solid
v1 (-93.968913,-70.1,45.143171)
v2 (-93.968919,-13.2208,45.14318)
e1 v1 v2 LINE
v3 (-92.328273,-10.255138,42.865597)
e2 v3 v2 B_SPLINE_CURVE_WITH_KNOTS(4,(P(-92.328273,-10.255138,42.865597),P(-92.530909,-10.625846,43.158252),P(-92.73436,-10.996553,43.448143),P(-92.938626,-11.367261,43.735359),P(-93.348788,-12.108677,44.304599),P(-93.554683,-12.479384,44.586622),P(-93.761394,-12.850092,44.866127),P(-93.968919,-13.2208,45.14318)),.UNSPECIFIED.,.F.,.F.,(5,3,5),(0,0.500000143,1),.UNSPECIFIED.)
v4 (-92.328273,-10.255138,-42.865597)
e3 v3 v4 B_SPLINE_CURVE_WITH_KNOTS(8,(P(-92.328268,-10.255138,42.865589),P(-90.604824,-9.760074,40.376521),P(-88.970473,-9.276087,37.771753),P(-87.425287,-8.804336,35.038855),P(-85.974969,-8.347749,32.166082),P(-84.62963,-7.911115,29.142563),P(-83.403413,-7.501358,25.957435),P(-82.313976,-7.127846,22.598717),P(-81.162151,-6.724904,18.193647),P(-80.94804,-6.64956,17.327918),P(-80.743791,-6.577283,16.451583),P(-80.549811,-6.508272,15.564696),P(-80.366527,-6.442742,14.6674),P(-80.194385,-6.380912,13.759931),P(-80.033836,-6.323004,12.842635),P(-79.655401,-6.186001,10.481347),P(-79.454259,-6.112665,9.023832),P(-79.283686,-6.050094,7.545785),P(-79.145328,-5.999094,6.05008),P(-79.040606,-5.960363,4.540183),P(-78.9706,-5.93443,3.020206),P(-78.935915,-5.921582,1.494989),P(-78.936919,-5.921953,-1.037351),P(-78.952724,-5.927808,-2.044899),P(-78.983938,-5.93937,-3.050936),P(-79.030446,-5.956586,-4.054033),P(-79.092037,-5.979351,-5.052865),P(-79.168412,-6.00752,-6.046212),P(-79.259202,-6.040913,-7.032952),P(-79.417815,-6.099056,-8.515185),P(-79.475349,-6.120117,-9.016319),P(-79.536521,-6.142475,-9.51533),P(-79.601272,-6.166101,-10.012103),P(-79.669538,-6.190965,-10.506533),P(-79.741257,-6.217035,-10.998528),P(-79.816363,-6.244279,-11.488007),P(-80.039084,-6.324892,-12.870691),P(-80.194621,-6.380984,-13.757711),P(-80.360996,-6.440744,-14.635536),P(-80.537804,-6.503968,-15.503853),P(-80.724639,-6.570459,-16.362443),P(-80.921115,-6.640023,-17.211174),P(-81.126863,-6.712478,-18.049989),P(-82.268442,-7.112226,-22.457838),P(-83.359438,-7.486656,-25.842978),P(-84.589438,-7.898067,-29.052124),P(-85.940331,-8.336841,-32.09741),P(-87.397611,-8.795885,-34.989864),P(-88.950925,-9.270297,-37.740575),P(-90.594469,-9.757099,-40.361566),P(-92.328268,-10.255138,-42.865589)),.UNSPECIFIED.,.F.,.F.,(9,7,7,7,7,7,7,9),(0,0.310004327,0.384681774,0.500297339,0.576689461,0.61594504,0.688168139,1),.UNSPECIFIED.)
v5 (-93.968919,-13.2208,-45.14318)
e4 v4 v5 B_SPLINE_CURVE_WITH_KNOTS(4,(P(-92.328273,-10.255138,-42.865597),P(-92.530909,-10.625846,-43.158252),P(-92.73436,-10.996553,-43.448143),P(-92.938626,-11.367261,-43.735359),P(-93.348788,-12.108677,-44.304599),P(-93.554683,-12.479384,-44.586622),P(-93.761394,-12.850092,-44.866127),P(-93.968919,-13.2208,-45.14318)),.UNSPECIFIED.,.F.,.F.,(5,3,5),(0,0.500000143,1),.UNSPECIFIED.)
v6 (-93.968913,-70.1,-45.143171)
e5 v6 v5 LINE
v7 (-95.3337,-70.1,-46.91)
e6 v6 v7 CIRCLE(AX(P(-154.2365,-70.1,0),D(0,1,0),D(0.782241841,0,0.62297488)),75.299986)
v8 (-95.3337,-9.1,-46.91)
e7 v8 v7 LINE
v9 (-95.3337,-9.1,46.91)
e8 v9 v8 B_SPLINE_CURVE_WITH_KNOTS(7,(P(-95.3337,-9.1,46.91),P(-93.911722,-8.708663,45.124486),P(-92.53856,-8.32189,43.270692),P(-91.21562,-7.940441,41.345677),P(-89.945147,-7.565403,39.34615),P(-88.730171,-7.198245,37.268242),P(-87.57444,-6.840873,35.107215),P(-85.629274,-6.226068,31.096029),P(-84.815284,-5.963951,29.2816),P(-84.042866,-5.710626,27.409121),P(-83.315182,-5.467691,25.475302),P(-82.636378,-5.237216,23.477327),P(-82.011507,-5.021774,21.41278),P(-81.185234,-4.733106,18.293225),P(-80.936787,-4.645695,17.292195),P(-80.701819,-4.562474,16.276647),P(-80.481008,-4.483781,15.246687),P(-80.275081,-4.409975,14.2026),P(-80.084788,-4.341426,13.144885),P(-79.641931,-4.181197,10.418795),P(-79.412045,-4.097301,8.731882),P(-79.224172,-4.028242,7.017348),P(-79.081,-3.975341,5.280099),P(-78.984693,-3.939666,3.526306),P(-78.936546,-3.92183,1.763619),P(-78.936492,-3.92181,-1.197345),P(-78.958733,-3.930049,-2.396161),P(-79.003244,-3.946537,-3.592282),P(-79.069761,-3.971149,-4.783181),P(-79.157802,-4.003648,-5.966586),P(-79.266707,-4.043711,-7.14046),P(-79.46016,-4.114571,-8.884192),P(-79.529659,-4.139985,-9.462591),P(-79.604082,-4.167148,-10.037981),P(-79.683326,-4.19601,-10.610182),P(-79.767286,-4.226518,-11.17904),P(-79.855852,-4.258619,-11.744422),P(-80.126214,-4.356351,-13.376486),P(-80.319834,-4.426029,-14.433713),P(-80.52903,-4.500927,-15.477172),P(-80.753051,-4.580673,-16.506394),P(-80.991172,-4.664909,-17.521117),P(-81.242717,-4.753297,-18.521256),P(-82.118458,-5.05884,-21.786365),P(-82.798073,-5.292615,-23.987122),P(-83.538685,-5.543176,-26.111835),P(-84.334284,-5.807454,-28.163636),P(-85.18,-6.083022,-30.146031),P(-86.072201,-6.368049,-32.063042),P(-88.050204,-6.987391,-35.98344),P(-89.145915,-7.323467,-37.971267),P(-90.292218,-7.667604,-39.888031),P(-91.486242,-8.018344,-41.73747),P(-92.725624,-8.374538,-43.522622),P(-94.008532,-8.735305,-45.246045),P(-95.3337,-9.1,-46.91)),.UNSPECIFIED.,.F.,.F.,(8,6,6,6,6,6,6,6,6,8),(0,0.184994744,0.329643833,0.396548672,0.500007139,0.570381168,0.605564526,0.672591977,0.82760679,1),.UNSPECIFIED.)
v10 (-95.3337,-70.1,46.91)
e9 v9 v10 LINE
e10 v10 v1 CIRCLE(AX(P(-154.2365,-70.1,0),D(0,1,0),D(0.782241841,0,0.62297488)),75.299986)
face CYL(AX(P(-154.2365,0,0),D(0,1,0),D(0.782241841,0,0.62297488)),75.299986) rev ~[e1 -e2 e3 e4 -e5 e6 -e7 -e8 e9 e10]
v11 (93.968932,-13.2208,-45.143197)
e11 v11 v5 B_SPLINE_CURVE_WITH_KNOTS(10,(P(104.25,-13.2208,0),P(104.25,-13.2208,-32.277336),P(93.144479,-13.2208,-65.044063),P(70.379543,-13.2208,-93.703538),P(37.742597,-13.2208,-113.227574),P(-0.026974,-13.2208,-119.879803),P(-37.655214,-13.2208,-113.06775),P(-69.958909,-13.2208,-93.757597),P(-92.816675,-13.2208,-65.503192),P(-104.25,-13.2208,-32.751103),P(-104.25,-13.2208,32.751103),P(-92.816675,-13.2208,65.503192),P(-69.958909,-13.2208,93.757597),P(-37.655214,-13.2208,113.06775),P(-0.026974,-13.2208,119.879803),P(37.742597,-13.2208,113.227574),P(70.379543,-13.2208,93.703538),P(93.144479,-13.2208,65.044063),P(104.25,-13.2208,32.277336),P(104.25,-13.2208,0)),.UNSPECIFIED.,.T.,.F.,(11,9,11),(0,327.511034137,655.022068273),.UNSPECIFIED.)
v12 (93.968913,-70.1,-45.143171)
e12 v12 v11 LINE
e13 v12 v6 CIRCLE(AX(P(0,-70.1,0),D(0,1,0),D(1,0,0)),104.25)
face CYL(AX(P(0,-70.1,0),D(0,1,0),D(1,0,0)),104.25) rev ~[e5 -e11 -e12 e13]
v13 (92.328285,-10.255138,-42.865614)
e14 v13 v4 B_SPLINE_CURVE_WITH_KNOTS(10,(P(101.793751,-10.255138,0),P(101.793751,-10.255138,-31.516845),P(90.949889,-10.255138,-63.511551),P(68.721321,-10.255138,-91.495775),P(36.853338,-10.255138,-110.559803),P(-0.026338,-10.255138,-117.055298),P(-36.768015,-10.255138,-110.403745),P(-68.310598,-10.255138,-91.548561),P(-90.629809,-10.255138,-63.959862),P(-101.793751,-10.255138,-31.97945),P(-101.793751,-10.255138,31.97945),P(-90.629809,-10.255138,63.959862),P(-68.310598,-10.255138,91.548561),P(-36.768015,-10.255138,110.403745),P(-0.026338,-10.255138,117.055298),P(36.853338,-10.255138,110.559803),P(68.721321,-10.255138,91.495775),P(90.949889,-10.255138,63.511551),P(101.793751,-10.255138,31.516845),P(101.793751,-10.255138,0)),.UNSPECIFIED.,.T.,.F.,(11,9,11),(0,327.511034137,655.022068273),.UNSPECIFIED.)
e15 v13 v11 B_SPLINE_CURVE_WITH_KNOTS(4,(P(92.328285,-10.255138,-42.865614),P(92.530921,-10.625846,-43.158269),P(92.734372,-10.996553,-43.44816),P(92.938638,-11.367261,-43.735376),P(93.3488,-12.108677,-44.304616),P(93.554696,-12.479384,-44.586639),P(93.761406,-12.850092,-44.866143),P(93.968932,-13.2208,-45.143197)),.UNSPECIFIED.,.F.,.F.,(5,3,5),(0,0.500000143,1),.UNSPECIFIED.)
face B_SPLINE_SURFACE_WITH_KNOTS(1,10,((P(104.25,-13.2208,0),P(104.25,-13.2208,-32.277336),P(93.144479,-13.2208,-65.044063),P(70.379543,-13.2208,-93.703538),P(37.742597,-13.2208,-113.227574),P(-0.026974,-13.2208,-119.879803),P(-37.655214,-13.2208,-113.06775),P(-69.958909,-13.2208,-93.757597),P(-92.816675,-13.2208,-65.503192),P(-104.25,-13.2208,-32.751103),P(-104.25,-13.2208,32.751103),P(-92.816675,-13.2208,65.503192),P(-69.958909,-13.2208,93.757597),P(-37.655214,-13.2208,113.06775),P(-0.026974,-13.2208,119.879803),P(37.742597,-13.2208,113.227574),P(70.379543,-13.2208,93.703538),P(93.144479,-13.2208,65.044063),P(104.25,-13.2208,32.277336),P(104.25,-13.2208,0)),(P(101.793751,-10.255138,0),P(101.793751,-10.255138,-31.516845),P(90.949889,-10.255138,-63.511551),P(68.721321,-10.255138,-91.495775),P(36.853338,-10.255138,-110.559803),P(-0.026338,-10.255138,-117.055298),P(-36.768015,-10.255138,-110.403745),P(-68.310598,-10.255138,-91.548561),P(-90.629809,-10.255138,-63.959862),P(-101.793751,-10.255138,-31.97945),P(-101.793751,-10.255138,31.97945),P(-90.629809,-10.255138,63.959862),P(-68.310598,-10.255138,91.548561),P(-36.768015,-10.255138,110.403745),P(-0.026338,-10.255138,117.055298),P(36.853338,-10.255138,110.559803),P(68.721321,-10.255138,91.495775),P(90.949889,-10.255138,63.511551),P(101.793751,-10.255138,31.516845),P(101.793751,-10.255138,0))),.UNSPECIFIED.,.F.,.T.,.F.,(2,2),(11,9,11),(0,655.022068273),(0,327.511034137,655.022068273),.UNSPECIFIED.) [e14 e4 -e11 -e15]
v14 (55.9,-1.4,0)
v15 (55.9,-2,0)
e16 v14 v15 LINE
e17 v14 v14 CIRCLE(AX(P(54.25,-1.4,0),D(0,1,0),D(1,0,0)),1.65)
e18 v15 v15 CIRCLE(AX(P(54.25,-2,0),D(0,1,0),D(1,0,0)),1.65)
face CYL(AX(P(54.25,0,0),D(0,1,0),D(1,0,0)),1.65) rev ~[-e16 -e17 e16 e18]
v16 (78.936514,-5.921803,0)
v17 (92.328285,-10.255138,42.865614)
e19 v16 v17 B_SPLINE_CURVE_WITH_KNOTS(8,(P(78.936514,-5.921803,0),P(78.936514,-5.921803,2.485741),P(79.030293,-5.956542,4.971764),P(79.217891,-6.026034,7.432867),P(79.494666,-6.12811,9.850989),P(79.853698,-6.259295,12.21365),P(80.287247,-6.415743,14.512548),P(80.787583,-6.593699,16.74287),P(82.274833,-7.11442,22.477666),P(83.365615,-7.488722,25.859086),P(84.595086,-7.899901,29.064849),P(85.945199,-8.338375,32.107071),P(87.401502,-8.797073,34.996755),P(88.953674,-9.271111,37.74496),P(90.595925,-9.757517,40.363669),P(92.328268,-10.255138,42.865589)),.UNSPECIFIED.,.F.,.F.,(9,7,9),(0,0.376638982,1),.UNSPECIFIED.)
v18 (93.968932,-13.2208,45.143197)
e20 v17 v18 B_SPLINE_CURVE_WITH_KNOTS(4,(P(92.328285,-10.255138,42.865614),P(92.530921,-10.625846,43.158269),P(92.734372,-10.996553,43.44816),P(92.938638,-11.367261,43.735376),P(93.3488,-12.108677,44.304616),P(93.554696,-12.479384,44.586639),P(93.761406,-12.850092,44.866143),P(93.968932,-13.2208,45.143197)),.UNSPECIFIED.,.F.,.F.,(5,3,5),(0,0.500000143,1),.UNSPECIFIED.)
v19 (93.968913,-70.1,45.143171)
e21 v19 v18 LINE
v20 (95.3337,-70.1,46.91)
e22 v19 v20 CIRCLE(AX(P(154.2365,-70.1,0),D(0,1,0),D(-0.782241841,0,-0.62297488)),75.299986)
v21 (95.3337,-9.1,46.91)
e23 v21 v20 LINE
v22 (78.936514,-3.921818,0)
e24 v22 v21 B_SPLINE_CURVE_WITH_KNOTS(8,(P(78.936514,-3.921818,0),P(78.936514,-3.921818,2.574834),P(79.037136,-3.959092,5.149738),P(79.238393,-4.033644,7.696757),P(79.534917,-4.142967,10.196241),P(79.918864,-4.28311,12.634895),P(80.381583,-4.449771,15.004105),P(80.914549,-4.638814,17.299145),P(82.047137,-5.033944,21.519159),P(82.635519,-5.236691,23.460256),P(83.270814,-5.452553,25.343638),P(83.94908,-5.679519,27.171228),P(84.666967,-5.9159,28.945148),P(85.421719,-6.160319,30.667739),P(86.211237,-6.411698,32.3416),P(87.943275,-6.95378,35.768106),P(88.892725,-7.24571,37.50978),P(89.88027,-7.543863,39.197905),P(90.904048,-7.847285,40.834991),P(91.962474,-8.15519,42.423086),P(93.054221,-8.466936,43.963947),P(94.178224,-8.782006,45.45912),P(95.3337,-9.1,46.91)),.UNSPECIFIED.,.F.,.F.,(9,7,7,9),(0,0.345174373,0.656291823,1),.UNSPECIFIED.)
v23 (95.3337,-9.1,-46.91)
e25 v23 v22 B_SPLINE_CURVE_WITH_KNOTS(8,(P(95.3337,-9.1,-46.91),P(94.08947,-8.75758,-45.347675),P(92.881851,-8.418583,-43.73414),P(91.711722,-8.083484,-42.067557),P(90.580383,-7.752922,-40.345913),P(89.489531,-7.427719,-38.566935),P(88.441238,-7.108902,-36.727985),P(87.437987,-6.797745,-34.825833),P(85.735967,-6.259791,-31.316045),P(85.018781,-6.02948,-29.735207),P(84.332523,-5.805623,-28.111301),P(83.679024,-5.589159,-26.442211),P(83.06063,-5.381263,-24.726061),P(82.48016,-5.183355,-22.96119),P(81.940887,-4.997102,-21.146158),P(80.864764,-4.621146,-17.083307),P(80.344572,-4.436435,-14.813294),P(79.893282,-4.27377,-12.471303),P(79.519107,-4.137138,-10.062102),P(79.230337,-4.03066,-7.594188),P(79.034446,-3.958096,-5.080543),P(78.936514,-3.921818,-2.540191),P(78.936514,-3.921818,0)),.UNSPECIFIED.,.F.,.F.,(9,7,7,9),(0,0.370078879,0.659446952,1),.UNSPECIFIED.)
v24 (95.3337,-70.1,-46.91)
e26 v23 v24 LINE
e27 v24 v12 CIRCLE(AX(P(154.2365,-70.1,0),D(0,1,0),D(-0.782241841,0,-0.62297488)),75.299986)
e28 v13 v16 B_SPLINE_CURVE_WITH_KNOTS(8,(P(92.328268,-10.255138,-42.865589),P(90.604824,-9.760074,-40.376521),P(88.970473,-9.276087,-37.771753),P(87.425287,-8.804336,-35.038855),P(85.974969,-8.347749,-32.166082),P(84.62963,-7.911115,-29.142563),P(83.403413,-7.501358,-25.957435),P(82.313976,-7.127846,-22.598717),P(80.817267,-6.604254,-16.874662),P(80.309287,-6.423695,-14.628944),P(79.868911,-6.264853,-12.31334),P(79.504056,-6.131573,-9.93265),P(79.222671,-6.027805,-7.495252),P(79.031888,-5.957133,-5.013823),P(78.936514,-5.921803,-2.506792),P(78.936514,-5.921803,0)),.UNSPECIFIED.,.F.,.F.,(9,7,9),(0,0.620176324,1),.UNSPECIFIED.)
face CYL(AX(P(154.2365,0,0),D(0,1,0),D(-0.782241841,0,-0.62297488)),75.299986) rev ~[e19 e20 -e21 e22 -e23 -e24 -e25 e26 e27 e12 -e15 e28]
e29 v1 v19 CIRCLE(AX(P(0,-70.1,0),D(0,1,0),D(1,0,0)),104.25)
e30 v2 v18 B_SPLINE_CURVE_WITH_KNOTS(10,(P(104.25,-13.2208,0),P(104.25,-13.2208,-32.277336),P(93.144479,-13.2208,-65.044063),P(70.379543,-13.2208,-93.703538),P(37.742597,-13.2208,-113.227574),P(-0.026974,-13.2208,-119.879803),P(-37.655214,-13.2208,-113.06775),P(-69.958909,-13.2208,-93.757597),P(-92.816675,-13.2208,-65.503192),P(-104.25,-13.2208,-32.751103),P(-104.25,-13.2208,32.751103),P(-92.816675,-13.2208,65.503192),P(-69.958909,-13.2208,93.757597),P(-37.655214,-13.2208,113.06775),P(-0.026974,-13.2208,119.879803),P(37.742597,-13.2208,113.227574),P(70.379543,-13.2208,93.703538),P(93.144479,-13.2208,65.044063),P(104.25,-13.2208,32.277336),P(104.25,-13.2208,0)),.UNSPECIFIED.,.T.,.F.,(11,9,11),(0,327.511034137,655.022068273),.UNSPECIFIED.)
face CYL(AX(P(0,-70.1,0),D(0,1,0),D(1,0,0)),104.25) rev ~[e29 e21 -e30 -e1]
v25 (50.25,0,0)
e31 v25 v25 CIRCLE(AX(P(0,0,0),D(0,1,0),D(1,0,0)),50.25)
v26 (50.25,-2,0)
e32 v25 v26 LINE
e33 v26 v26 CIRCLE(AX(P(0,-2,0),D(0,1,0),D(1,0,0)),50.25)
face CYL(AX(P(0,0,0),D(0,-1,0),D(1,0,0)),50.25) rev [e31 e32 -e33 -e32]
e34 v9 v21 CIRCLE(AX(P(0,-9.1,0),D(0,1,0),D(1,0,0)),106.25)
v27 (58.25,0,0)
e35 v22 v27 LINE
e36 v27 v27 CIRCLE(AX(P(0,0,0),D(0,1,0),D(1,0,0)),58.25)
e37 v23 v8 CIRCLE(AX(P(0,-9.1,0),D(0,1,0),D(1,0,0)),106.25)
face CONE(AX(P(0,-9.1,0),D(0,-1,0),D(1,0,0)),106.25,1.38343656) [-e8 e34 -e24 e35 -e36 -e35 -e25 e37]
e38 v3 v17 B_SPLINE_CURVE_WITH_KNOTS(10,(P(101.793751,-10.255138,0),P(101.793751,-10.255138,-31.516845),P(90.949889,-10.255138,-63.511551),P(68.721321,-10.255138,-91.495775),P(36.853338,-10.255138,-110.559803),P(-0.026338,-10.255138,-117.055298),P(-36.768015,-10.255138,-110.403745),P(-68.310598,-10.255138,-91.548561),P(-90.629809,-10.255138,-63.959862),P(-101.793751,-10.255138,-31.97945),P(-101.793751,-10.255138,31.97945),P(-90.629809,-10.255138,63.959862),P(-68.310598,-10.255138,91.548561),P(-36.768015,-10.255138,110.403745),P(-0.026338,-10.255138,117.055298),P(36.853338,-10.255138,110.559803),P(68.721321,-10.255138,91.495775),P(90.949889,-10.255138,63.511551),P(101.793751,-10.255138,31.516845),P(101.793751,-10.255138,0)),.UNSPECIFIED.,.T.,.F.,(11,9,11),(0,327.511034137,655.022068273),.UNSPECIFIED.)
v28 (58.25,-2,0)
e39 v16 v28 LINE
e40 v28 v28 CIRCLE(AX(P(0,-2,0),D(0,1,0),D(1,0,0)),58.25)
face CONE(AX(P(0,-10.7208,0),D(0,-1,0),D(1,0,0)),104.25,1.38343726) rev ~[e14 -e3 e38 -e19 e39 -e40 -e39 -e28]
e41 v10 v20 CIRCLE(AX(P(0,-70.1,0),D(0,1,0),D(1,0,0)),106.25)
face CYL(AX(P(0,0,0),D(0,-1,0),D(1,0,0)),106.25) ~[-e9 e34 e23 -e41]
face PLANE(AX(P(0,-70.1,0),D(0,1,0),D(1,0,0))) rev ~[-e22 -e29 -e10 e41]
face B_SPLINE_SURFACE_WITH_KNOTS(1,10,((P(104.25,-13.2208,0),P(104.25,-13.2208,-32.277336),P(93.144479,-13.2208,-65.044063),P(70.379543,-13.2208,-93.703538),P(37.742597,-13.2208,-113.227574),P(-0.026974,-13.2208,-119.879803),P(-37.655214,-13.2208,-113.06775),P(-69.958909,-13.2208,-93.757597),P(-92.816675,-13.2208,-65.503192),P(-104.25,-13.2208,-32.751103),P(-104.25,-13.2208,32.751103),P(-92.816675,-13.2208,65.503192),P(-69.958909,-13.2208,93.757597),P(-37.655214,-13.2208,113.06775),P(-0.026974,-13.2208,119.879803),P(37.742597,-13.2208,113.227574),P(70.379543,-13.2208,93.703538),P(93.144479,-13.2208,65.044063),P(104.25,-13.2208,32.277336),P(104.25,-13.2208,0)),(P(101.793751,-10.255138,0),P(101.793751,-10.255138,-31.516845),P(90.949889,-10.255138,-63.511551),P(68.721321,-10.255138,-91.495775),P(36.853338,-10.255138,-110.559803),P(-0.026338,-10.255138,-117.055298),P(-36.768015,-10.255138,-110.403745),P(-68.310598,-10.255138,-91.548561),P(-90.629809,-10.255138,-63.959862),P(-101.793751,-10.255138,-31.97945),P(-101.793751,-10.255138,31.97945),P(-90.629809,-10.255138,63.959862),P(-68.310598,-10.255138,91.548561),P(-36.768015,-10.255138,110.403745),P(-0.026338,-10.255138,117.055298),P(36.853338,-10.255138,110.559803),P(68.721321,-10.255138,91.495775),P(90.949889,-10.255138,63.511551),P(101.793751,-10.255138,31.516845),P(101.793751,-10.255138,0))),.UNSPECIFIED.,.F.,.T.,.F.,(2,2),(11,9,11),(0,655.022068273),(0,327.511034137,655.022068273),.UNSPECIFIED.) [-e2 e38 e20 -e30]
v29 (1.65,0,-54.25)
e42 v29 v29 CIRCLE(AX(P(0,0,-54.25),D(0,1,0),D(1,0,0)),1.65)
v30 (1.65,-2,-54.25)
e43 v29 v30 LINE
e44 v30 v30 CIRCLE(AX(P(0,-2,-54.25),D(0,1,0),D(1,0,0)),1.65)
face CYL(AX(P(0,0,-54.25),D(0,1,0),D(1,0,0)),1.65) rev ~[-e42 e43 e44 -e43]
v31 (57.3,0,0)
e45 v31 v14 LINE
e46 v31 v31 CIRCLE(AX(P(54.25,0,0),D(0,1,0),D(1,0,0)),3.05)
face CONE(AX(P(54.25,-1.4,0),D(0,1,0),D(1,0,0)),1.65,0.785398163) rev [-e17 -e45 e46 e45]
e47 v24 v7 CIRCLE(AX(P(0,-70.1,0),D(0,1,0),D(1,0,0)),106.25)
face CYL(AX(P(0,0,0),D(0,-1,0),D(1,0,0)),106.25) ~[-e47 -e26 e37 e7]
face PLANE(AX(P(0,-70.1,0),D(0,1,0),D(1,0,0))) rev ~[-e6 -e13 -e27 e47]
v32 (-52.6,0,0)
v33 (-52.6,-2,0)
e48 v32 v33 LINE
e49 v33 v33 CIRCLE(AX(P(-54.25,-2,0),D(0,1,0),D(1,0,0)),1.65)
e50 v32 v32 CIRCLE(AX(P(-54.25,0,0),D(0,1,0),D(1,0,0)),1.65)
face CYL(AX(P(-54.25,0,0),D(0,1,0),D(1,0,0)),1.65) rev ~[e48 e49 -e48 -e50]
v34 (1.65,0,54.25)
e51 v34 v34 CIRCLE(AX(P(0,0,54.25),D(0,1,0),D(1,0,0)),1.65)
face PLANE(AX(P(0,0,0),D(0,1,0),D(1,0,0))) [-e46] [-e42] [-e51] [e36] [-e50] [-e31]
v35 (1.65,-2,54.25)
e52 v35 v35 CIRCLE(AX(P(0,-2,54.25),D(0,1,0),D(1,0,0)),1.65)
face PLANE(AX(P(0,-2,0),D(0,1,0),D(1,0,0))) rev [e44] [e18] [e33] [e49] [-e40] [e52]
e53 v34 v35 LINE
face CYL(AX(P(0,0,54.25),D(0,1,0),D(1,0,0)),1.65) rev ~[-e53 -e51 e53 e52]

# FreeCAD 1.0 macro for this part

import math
import FreeCAD as App
import Part
import Sketcher
from FreeCAD import Vector


def edges_at(feature, points):
    """Names of the edges that pass closest to the given points."""
    edges = feature.Shape.Edges
    near = lambda p: min(range(len(edges)), key=lambda i: edges[i].distToShape(Part.Vertex(*p))[0])
    return sorted({f"Edge{near(p) + 1}" for p in points})


def add_polygon(sketch, points):
    """Adds a closed chain of lines whose ends are joined by coincident constraints."""
    first, n = sketch.GeometryCount, len(points)
    for a, b in zip(points, points[1:] + points[:1]):
        sketch.addGeometry(Part.LineSegment(App.Vector(*a, 0), App.Vector(*b, 0)), False)
    for i in range(n):
        sketch.addConstraint(Sketcher.Constraint("Coincident", first + i, 2, first + (i + 1) % n, 1))

doc = App.newDocument("Part")
body = doc.addObject("PartDesign::Body", "Body")

# Sketch on XY plane
sketch1 = body.newObject("Sketcher::SketchObject", "Sketch")
sketch1.AttachmentSupport = (doc.getObject("XY_Plane"), [""])
sketch1.MapMode = "FlatFace"
add_polygon(sketch1, [(106.25, -9.1), (58.25, 0), (50.25, 0), (50.25, -2), (58.25, -2), (104.25, -10.7208), (104.25, -70.1), (106.25, -70.1)])  # lines 0-7
sketch1.addConstraint([
    Sketcher.Constraint("Horizontal", 1),
    Sketcher.Constraint("Vertical", 2),
    Sketcher.Constraint("Horizontal", 3),
    Sketcher.Constraint("Vertical", 5),
    Sketcher.Constraint("Horizontal", 6),
    Sketcher.Constraint("Vertical", 7),
    Sketcher.Constraint("PointOnObject", 0, 2, -1),
    Sketcher.Constraint("Parallel", 0, 4),
    Sketcher.Constraint("Vertical", 0, 2, 3, 2),
    Sketcher.Constraint("Equal", 6, 2),
    Sketcher.Constraint("DistanceX", 1, 2, 1, 1, 8.0),
    Sketcher.Constraint("DistanceX", 6, 1, 6, 2, 2.0),
    Sketcher.Constraint("DistanceY", 7, 1, 7, 2, 61.0),
    Sketcher.Constraint("DistanceY", 5, 2, -1, 1, 70.1),
    Sketcher.Constraint("DistanceX", -1, 1, 1, 2, 50.25),
    Sketcher.Constraint("DistanceX", 3, 2, 4, 2, 46.0),
])
revolution = body.newObject("PartDesign::Revolution", "Revolution")
revolution.Profile = sketch1
revolution.ReferenceAxis = (sketch1, ["V_Axis"])
revolution.Angle = 360
doc.recompute()

chamfer = body.newObject("PartDesign::Chamfer", "Chamfer")
chamfer.Base = (revolution, edges_at(revolution, [(-104.25, -10.721, 0)]))
chamfer.Size = 2.5

# Sketch on XZ plane
sketch2 = body.newObject("Sketcher::SketchObject", "Sketch001")
sketch2.AttachmentSupport = (doc.getObject("XZ_Plane"), [""])
sketch2.MapMode = "FlatFace"
sketch2.addGeometry([
    Part.ArcOfCircle(Part.Circle(Vector(-154.2365, 0, 0), Vector(0, 0, 1), 75.299986), math.radians(-38.533703), math.radians(38.533703)),
    Part.ArcOfCircle(Part.Circle(Vector(0, 0, 0), Vector(0, 0, 1), 106.25), math.radians(153.799998), math.radians(206.200002)),
    Part.ArcOfCircle(Part.Circle(Vector(0, 0, 0), Vector(0, 0, 1), 106.25), math.radians(-26.200002), math.radians(26.200002)),
    Part.ArcOfCircle(Part.Circle(Vector(154.2365, 0, 0), Vector(0, 0, 1), 75.299986), math.radians(141.466297), math.radians(218.533703)),
], False)
sketch2.addConstraint([
    Sketcher.Constraint("Coincident", 0, 1, 1, 2),
    Sketcher.Constraint("Coincident", 1, 1, 0, 2),
    Sketcher.Constraint("Coincident", 2, 1, 3, 2),
    Sketcher.Constraint("Coincident", 3, 1, 2, 2),
    Sketcher.Constraint("Coincident", 1, 3, -1, 1),
    Sketcher.Constraint("Coincident", 2, 3, -1, 1),
    Sketcher.Constraint("Equal", 1, 2),
    Sketcher.Constraint("Equal", 0, 3),
    Sketcher.Constraint("Symmetric", 0, 3, 3, 3, -1, 1),
    Sketcher.Constraint("PointOnObject", 0, 3, -1),
    Sketcher.Constraint("Radius", 0, 75.3),
    Sketcher.Constraint("Radius", 1, 106.25),
    Sketcher.Constraint("DistanceY", 0, 1, 1, 1, 93.82),
])
pocket1 = body.newObject("PartDesign::Pocket", "Pocket")
pocket1.Profile = sketch2
pocket1.Type = "ThroughAll"
pocket1.Reversed = True

# Sketch on XZ plane
sketch3 = body.newObject("Sketcher::SketchObject", "Sketch002")
sketch3.AttachmentSupport = (doc.getObject("XZ_Plane"), [""])
sketch3.MapMode = "FlatFace"
sketch3.addGeometry([
    Part.Circle(Vector(-54.25, 0, 0), Vector(0, 0, 1), 1.65),
    Part.Circle(Vector(0, -54.25, 0), Vector(0, 0, 1), 1.65),
    Part.Circle(Vector(54.25, 0, 0), Vector(0, 0, 1), 1.65),
    Part.Circle(Vector(0, 54.25, 0), Vector(0, 0, 1), 1.65),
], False)
sketch3.addConstraint([
    Sketcher.Constraint("Equal", 0, 1),
    Sketcher.Constraint("Equal", 1, 2),
    Sketcher.Constraint("Equal", 2, 3),
    Sketcher.Constraint("Symmetric", 0, 3, 2, 3, -1, 1),
    Sketcher.Constraint("Symmetric", 1, 3, 3, 3, -1, 1),
    Sketcher.Constraint("PointOnObject", 0, 3, -1),
    Sketcher.Constraint("PointOnObject", 1, 3, -2),
    Sketcher.Constraint("Diameter", 0, 3.3),
    Sketcher.Constraint("DistanceX", 0, 3, 2, 3, 108.5),
    Sketcher.Constraint("DistanceY", 1, 3, 3, 3, 108.5),
])
pocket2 = body.newObject("PartDesign::Pocket", "Pocket001")
pocket2.Profile = sketch3
pocket2.Length = 10
pocket2.Reversed = True
doc.recompute()

chamfer2 = body.newObject("PartDesign::Chamfer", "Chamfer001")
chamfer2.Base = (pocket2, edges_at(pocket2, [(52.6, 0, 0)]))
chamfer2.Size = 1.4

doc.recompute()
